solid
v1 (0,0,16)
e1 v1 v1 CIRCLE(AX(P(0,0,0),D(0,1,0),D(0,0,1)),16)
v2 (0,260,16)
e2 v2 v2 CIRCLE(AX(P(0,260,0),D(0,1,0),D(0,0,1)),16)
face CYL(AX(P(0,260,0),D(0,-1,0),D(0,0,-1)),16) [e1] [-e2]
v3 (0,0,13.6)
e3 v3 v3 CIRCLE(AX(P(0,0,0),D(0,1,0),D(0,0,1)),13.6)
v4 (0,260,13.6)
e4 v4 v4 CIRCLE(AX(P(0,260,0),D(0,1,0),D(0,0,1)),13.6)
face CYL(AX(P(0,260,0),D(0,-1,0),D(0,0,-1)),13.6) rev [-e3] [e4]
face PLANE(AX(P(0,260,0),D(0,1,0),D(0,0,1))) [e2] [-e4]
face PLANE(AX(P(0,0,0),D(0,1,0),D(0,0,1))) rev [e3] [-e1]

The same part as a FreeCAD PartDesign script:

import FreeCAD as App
import Part
import Sketcher

V = App.Vector

doc = App.newDocument("Part")
body = doc.addObject("PartDesign::Body", "Body")

sketch1 = doc.addObject("Sketcher::SketchObject", "Sketch")
body.addObject(sketch1)
sketch1.AttachmentSupport = (doc.XZ_Plane, [""])
sketch1.MapMode = "FlatFace"
sketch1.addGeometry(Part.Circle(V(0, 0, 0), V(0, 0, 1), 16), False)
sketch1.addGeometry(Part.Circle(V(0, 0, 0), V(0, 0, 1), 14), False)
sketch1.addConstraint(Sketcher.Constraint("Coincident", 0, 3, -1, 1))
sketch1.addConstraint(Sketcher.Constraint("Coincident", 1, 3, -1, 1))
sketch1.addConstraint(Sketcher.Constraint("Diameter", 0, 32.0))
sketch1.addConstraint(Sketcher.Constraint("Diameter", 1, 27.2))
pad1 = doc.addObject("PartDesign::Pad", "Pad")
body.addObject(pad1)
pad1.Profile = sketch1
pad1.Length = 260
pad1.Reversed = True

doc.recompute()
